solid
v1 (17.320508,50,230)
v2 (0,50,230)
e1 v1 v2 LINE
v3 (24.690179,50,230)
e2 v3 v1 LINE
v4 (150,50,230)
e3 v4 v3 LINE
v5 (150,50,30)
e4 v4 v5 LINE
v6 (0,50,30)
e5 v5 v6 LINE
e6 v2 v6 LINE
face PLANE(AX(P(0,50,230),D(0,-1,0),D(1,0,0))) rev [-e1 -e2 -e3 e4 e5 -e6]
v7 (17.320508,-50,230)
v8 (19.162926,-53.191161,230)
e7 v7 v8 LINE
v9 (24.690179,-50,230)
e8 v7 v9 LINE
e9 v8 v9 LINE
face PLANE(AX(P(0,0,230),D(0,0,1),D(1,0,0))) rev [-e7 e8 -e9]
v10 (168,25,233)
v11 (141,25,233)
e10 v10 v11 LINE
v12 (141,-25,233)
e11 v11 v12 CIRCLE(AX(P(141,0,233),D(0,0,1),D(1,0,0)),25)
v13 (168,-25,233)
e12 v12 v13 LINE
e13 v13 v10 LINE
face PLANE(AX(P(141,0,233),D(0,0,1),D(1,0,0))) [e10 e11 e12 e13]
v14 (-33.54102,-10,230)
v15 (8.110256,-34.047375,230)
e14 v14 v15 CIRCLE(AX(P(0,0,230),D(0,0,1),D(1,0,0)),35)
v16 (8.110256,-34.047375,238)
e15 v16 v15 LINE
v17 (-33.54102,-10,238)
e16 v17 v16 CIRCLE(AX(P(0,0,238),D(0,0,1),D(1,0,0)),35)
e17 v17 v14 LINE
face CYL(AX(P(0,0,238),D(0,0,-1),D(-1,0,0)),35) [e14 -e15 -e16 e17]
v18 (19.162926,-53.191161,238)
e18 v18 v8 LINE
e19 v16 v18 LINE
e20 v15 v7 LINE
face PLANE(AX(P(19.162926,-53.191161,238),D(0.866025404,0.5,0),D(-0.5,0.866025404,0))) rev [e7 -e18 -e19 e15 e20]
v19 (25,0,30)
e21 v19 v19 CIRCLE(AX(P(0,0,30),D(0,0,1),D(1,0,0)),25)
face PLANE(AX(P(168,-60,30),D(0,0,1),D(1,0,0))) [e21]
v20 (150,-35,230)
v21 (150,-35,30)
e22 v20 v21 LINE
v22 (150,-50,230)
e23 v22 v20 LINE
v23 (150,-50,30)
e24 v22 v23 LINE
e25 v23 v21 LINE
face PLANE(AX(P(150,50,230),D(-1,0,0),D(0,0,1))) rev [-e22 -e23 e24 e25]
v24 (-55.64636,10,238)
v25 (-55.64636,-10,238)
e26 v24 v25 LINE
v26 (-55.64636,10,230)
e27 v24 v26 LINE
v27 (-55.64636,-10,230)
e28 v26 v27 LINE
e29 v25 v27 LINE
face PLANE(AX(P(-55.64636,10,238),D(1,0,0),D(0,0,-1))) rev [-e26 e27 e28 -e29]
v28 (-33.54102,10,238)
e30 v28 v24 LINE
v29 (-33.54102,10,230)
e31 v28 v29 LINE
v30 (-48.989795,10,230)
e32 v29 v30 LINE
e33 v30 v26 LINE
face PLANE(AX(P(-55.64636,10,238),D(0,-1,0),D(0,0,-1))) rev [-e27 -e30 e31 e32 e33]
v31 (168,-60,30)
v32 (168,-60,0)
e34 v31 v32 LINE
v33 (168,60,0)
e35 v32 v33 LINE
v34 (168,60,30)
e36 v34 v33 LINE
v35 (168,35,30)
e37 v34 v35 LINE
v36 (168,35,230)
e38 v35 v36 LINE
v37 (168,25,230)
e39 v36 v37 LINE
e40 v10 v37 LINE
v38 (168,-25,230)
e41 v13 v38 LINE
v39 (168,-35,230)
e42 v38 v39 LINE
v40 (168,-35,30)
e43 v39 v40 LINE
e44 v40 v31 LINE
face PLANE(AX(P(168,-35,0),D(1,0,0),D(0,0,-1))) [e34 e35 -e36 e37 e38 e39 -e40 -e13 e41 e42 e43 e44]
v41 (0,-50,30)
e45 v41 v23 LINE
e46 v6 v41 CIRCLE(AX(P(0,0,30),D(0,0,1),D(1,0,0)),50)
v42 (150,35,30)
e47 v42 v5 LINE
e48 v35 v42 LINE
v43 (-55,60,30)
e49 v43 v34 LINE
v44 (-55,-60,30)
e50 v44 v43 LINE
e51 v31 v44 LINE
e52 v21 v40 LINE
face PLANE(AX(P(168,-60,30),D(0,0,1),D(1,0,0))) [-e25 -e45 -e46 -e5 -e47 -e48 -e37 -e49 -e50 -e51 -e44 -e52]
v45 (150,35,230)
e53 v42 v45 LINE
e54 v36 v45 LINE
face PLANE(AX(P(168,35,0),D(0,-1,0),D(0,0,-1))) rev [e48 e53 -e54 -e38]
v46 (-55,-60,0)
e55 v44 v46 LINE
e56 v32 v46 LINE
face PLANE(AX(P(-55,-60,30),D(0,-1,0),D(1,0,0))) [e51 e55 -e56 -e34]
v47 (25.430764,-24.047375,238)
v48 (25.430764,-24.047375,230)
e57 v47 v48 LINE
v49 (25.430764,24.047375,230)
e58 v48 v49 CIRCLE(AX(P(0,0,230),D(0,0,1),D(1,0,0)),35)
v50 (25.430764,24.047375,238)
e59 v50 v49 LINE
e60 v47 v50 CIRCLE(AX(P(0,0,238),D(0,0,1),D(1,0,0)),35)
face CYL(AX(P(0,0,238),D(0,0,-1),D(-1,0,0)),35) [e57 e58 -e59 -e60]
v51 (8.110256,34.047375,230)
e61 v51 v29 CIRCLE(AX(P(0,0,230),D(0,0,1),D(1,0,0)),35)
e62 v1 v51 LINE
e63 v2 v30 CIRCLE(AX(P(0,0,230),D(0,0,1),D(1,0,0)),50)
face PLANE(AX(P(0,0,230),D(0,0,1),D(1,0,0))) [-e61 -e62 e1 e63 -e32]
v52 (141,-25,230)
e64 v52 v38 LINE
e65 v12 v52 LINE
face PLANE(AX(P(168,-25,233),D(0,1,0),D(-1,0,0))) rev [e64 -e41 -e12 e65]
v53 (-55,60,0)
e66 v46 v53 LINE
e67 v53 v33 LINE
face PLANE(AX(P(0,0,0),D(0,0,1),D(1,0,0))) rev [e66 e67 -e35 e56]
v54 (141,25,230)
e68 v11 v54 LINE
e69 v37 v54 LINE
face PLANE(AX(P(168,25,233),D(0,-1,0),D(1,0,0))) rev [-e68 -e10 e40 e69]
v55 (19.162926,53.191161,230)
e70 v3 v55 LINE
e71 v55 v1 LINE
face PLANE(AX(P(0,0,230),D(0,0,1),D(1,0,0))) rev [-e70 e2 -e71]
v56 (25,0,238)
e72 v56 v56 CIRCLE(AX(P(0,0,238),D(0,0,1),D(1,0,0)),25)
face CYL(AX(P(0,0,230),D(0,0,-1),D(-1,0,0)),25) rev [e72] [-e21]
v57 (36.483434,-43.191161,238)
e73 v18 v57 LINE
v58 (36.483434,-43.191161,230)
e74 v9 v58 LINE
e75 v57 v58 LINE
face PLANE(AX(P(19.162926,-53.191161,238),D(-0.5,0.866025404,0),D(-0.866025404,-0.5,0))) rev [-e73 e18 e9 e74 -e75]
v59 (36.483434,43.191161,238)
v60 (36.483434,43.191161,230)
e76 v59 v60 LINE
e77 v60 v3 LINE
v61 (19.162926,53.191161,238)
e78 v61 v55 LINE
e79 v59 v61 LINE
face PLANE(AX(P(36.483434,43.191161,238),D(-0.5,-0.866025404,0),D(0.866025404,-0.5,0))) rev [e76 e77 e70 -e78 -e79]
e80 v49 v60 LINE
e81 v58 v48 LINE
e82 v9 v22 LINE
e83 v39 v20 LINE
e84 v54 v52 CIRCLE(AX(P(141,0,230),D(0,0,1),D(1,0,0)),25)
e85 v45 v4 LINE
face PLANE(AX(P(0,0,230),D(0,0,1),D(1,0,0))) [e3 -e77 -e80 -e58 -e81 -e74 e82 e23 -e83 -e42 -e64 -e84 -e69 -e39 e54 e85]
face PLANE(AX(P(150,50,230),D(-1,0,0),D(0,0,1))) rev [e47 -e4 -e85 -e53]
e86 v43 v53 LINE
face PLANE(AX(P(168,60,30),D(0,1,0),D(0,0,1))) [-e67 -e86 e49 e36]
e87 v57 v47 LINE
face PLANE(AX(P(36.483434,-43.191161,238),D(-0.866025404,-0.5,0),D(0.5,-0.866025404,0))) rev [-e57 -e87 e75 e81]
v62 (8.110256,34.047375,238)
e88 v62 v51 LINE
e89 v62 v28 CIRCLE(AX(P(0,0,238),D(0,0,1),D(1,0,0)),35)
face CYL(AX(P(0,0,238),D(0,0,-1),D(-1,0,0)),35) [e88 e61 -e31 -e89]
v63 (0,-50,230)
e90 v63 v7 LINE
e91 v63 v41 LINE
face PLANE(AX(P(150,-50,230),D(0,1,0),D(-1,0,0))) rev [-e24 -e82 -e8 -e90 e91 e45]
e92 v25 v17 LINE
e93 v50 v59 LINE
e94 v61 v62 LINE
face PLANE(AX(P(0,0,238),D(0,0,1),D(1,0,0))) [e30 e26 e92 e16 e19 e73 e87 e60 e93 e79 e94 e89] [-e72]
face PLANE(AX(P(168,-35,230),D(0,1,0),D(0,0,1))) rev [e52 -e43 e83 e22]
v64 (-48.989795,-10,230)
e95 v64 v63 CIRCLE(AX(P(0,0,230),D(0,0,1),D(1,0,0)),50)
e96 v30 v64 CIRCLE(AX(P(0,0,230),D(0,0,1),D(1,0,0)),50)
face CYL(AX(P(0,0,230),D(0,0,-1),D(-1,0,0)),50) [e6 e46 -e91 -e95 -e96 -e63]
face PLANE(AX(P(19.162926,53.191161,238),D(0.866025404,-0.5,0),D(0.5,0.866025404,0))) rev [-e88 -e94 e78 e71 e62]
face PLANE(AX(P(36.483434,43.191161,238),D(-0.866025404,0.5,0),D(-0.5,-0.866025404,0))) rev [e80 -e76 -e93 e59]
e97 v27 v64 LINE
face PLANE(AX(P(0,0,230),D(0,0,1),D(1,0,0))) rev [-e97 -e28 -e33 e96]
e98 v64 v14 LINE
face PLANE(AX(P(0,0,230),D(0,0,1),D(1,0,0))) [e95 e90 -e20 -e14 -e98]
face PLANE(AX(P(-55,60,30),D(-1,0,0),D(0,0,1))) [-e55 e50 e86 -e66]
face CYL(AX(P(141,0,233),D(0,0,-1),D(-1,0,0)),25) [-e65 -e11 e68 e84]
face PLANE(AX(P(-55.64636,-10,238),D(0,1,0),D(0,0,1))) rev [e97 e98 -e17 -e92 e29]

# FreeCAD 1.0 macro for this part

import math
import FreeCAD as App
import Part
import Sketcher
Q = App.Units.Quantity


def add_polygon(sketch, points):
    """Adds a closed chain of lines whose ends are joined by coincident constraints."""
    first, n = sketch.GeometryCount, len(points)
    for a, b in zip(points, points[1:] + points[:1]):
        sketch.addGeometry(Part.LineSegment(App.Vector(*a, 0), App.Vector(*b, 0)), False)
    for i in range(n):
        sketch.addConstraint(Sketcher.Constraint("Coincident", first + i, 2, first + (i + 1) % n, 1))

doc = App.newDocument("Part")
body = doc.addObject("PartDesign::Body", "Body")

sketch1 = doc.addObject("Sketcher::SketchObject", "Sketch")
body.addObject(sketch1)
sketch1.AttachmentSupport = (doc.XY_Plane, [""])
sketch1.MapMode = "FlatFace"
sketch1.addGeometry([
    Part.LineSegment(App.Vector(150, 50, 0), App.Vector(0, 50, 0)),
    Part.ArcOfCircle(Part.Circle(App.Vector(0, 0, 0), App.Vector(0, 0, 1), 50), math.radians(90), math.radians(270)),
    Part.LineSegment(App.Vector(0, -50, 0), App.Vector(150, -50, 0)),
    Part.LineSegment(App.Vector(150, -50, 0), App.Vector(150, 50, 0)),
    Part.Circle(App.Vector(0, 0, 0), App.Vector(0, 0, 1), 25),
], False)
sketch1.addConstraint([
    Sketcher.Constraint("Tangent", 0, 2, 1, 1),
    Sketcher.Constraint("Tangent", 1, 2, 2, 1),
    Sketcher.Constraint("Coincident", 2, 2, 3, 1),
    Sketcher.Constraint("Coincident", 3, 2, 0, 1),
    Sketcher.Constraint("Horizontal", 0),
    Sketcher.Constraint("Horizontal", 2),
    Sketcher.Constraint("Vertical", 3),
    Sketcher.Constraint("Coincident", 1, 3, -1, 1),
    Sketcher.Constraint("Coincident", 4, 3, -1, 1),
    Sketcher.Constraint("Diameter", 4, Q("50 mm")),
    Sketcher.Constraint("Radius", 1, Q("50 mm")),
    Sketcher.Constraint("DistanceX", 0, 2, 0, 1, Q("150 mm")),
])
pad1 = doc.addObject("PartDesign::Pad", "Pad")
body.addObject(pad1)
pad1.Profile = sketch1
pad1.Length = 230

sketch2 = doc.addObject("Sketcher::SketchObject", "Sketch001")
body.addObject(sketch2)
sketch2.AttachmentSupport = (doc.YZ_Plane, [""])
sketch2.MapMode = "FlatFace"
sketch2.AttachmentOffset = App.Placement(App.Vector(0, 0, 150), App.Rotation())
add_polygon(sketch2, [(35, 230), (-35, 230), (-35, 0), (35, 0)])
sketch2.addConstraint([
    Sketcher.Constraint("Horizontal", 0),
    Sketcher.Constraint("Vertical", 1),
    Sketcher.Constraint("Horizontal", 2),
    Sketcher.Constraint("Vertical", 3),
    Sketcher.Constraint("Symmetric", 1, 2, 2, 2, -1, 1),
    Sketcher.Constraint("DistanceX", 0, 2, 0, 1, Q("70 mm")),
    Sketcher.Constraint("DistanceY", 1, 2, 1, 1, Q("230 mm")),
])
pad2 = doc.addObject("PartDesign::Pad", "Pad001")
body.addObject(pad2)
pad2.Profile = sketch2
pad2.Length = 18

sketch3 = doc.addObject("Sketcher::SketchObject", "Sketch002")
body.addObject(sketch3)
sketch3.AttachmentSupport = (doc.XY_Plane, [""])
sketch3.MapMode = "FlatFace"
add_polygon(sketch3, [(168, 60), (168, -60), (-55, -60), (-55, 60)])
sketch3.addConstraint([
    Sketcher.Constraint("Vertical", 0),
    Sketcher.Constraint("Horizontal", 1),
    Sketcher.Constraint("Vertical", 2),
    Sketcher.Constraint("Horizontal", 3),
    Sketcher.Constraint("DistanceX", 1, 2, 1, 1, Q("223 mm")),
    Sketcher.Constraint("DistanceY", 0, 2, 0, 1, Q("120 mm")),
    Sketcher.Constraint("DistanceX", -1, 1, 0, 2, Q("168 mm")),
    Sketcher.Constraint("DistanceY", 0, 2, -1, 1, Q("60 mm")),
])
pad3 = doc.addObject("PartDesign::Pad", "Pad002")
body.addObject(pad3)
pad3.Profile = sketch3
pad3.Length = 30

sketch4 = doc.addObject("Sketcher::SketchObject", "Sketch003")
body.addObject(sketch4)
sketch4.AttachmentSupport = (doc.XY_Plane, [""])
sketch4.MapMode = "FlatFace"
sketch4.AttachmentOffset = App.Placement(App.Vector(0, 0, 230), App.Rotation())
sketch4.addGeometry([
    Part.LineSegment(App.Vector(168, 25, 0), App.Vector(141, 25, 0)),
    Part.ArcOfCircle(Part.Circle(App.Vector(141, 0, 0), App.Vector(0, 0, 1), 25), math.radians(90), math.radians(270)),
    Part.LineSegment(App.Vector(141, -25, 0), App.Vector(168, -25, 0)),
    Part.LineSegment(App.Vector(168, -25, 0), App.Vector(168, 25, 0)),
], False)
sketch4.addConstraint([
    Sketcher.Constraint("Tangent", 0, 2, 1, 1),
    Sketcher.Constraint("Tangent", 1, 2, 2, 1),
    Sketcher.Constraint("Coincident", 2, 2, 3, 1),
    Sketcher.Constraint("Coincident", 3, 2, 0, 1),
    Sketcher.Constraint("Horizontal", 0),
    Sketcher.Constraint("Horizontal", 2),
    Sketcher.Constraint("Vertical", 3),
    Sketcher.Constraint("PointOnObject", 1, 3, -1),
    Sketcher.Constraint("Radius", 1, Q("25 mm")),
    Sketcher.Constraint("DistanceX", 0, 2, 0, 1, Q("27 mm")),
    Sketcher.Constraint("DistanceX", -1, 1, 1, 3, Q("141 mm")),
])
pad4 = doc.addObject("PartDesign::Pad", "Pad003")
body.addObject(pad4)
pad4.Profile = sketch4
pad4.Length = 3

sketch5 = doc.addObject("Sketcher::SketchObject", "Sketch004")
body.addObject(sketch5)
sketch5.AttachmentSupport = (doc.XY_Plane, [""])
sketch5.MapMode = "FlatFace"
sketch5.AttachmentOffset = App.Placement(App.Vector(0, 0, 230), App.Rotation())
sketch5.addGeometry([
    Part.LineSegment(App.Vector(-55.64636, 10, 0), App.Vector(-55.64636, -10, 0)),
    Part.LineSegment(App.Vector(-55.64636, -10, 0), App.Vector(-33.54102, -10, 0)),
    Part.ArcOfCircle(Part.Circle(App.Vector(0, 0, 0), App.Vector(0, 0, 1), 35), math.radians(-163.39845), math.radians(-76.60155)),
    Part.LineSegment(App.Vector(8.110256, -34.047375, 0), App.Vector(19.162926, -53.191161, 0)),
    Part.LineSegment(App.Vector(19.162926, -53.191161, 0), App.Vector(36.483434, -43.191161, 0)),
    Part.LineSegment(App.Vector(36.483434, -43.191161, 0), App.Vector(25.430764, -24.047375, 0)),
    Part.ArcOfCircle(Part.Circle(App.Vector(0, 0, 0), App.Vector(0, 0, 1), 35), math.radians(-43.39845), math.radians(43.39845)),
    Part.LineSegment(App.Vector(25.430764, 24.047375, 0), App.Vector(36.483434, 43.191161, 0)),
    Part.LineSegment(App.Vector(36.483434, 43.191161, 0), App.Vector(19.162926, 53.191161, 0)),
    Part.LineSegment(App.Vector(19.162926, 53.191161, 0), App.Vector(8.110256, 34.047375, 0)),
    Part.ArcOfCircle(Part.Circle(App.Vector(0, 0, 0), App.Vector(0, 0, 1), 35), math.radians(76.60155), math.radians(163.39845)),
    Part.LineSegment(App.Vector(-33.54102, 10, 0), App.Vector(-55.64636, 10, 0)),
    Part.Circle(App.Vector(0, 0, 0), App.Vector(0, 0, 1), 25),
], False)
sketch5.addConstraint([
    Sketcher.Constraint("Coincident", 0, 2, 1, 1),
    Sketcher.Constraint("Coincident", 1, 2, 2, 1),
    Sketcher.Constraint("Coincident", 2, 2, 3, 1),
    Sketcher.Constraint("Coincident", 3, 2, 4, 1),
    Sketcher.Constraint("Coincident", 4, 2, 5, 1),
    Sketcher.Constraint("Coincident", 5, 2, 6, 1),
    Sketcher.Constraint("Coincident", 6, 2, 7, 1),
    Sketcher.Constraint("Coincident", 7, 2, 8, 1),
    Sketcher.Constraint("Coincident", 8, 2, 9, 1),
    Sketcher.Constraint("Coincident", 9, 2, 10, 1),
    Sketcher.Constraint("Coincident", 10, 2, 11, 1),
    Sketcher.Constraint("Coincident", 11, 2, 0, 1),
    Sketcher.Constraint("Vertical", 0),
    Sketcher.Constraint("Horizontal", 1),
    Sketcher.Constraint("Horizontal", 11),
    Sketcher.Constraint("Coincident", 2, 3, -1, 1),
    Sketcher.Constraint("Coincident", 6, 3, -1, 1),
    Sketcher.Constraint("Coincident", 10, 3, -1, 1),
    Sketcher.Constraint("Coincident", 12, 3, -1, 1),
    Sketcher.Constraint("Equal", 2, 6),
    Sketcher.Constraint("Equal", 6, 10),
    Sketcher.Constraint("Symmetric", 4, 2, 7, 2, -1),
    Sketcher.Constraint("Symmetric", 3, 2, 8, 2, -1),
    Sketcher.Constraint("Perpendicular", 3, 4),
    Sketcher.Constraint("Perpendicular", 4, 5),
    Sketcher.Constraint("Perpendicular", 7, 8),
    Sketcher.Constraint("Perpendicular", 8, 9),
    Sketcher.Constraint("Vertical", 1, 2, 10, 2),
    Sketcher.Constraint("Equal", 3, 5),
    Sketcher.Constraint("Diameter", 12, Q("50 mm")),
    Sketcher.Constraint("Radius", 2, Q("35 mm")),
    Sketcher.Constraint("DistanceY", 0, 2, 0, 1, Q("20 mm")),
    Sketcher.Constraint("Angle", 3, Q("-60 deg")),
    Sketcher.Constraint("Distance", 4, Q("20 mm")),
    Sketcher.Constraint("DistanceX", 1, 1, 1, 2, Q("22.10534 mm")),
    Sketcher.Constraint("Distance", 3, Q("22.10534 mm")),
])
pad5 = doc.addObject("PartDesign::Pad", "Pad004")
body.addObject(pad5)
pad5.Profile = sketch5
pad5.Length = 8

doc.recompute()
